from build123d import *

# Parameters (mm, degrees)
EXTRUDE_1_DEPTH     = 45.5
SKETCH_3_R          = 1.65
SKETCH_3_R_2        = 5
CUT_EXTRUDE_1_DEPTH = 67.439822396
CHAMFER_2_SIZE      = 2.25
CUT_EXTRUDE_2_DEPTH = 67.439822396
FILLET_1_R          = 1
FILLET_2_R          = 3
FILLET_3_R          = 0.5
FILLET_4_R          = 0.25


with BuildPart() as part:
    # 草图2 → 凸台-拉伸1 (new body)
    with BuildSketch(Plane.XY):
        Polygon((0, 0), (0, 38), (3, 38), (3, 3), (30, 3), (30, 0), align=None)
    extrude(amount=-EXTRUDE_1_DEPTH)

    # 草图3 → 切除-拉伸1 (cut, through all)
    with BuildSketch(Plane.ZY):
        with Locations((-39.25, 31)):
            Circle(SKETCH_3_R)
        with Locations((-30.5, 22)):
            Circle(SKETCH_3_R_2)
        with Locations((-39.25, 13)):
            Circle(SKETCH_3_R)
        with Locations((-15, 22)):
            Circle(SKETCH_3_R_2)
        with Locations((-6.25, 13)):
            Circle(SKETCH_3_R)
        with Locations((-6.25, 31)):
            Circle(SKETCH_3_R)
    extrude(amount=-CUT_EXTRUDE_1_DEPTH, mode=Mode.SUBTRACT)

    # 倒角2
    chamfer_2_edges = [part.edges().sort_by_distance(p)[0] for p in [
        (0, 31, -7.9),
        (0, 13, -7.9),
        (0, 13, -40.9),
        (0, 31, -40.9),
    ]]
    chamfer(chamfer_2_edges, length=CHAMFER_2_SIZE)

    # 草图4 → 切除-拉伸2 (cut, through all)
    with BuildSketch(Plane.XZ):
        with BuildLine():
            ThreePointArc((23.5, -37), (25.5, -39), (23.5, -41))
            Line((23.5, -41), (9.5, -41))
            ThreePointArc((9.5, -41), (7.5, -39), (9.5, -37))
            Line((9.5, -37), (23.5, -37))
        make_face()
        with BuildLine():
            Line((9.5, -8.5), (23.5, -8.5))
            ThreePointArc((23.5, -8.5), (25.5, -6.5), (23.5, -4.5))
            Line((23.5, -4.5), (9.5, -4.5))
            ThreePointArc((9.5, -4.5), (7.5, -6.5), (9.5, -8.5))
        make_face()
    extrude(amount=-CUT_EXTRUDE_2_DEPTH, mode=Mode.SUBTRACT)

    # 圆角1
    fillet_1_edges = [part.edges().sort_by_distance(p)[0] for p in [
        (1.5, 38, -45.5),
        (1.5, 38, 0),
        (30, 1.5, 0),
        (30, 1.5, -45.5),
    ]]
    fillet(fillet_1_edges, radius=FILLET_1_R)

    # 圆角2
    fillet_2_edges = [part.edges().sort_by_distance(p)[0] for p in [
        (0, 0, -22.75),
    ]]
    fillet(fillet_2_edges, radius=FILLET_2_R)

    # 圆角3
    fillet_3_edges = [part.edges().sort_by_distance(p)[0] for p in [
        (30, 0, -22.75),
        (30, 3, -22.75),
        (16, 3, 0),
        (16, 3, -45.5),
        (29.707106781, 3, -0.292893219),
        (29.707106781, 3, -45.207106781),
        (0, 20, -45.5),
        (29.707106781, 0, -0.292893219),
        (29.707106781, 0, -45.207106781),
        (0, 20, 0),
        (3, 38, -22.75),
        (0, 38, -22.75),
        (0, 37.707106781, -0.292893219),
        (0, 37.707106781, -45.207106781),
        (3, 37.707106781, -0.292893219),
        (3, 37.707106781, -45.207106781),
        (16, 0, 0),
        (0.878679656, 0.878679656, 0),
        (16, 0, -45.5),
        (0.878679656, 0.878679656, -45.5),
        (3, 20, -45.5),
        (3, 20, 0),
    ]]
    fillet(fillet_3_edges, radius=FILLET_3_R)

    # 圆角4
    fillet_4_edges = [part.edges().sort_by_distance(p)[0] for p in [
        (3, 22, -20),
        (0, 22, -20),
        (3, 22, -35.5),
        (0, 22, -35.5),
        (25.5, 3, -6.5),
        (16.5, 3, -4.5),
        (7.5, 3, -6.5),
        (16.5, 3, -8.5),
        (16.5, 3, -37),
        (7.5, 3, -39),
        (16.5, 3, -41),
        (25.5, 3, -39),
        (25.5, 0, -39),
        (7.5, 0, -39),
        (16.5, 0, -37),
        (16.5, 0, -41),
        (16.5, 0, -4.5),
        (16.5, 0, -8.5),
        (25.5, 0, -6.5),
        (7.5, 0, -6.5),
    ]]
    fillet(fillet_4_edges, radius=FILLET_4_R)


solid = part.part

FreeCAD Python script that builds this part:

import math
import FreeCAD as App
import Part
import Sketcher

V = App.Vector


def edges_at(feature, points):
    """Names of the edges that pass closest to the given points."""
    edges = feature.Shape.Edges
    near = lambda p: min(range(len(edges)), key=lambda i: edges[i].distToShape(Part.Vertex(*p))[0])
    return sorted({f"Edge{near(p) + 1}" for p in points})


def add_polygon(sketch, points):
    """Adds a closed chain of lines whose ends are joined by coincident constraints."""
    first, n = sketch.GeometryCount, len(points)
    for a, b in zip(points, points[1:] + points[:1]):
        sketch.addGeometry(Part.LineSegment(App.Vector(*a, 0), App.Vector(*b, 0)), False)
    for i in range(n):
        sketch.addConstraint(Sketcher.Constraint("Coincident", first + i, 2, first + (i + 1) % n, 1))

doc = App.newDocument("Part")
body = doc.addObject("PartDesign::Body", "Body")

# Sketch on XY plane
sketch1 = body.newObject("Sketcher::SketchObject", "Sketch")
sketch1.AttachmentSupport = (doc.getObject("XY_Plane"), [""])
sketch1.MapMode = "FlatFace"
add_polygon(sketch1, [(0, 38), (0, 0), (30, 0), (30, 3), (3, 3), (3, 38)])  # lines 0-5
sketch1.addConstraint([
    Sketcher.Constraint("Vertical", 0),
    Sketcher.Constraint("Horizontal", 1),
    Sketcher.Constraint("Vertical", 2),
    Sketcher.Constraint("Horizontal", 3),
    Sketcher.Constraint("Vertical", 4),
    Sketcher.Constraint("Horizontal", 5),
    Sketcher.Constraint("Coincident", 0, 2, -1, 1),
    Sketcher.Constraint("Equal", 5, 2),
    Sketcher.Constraint("DistanceX", 1, 1, 1, 2, 30.0),
    Sketcher.Constraint("DistanceX", 3, 2, 3, 1, 27.0),
    Sketcher.Constraint("DistanceY", 0, 2, 0, 1, 38.0),
])
pad1 = body.newObject("PartDesign::Pad", "Pad")
pad1.Profile = sketch1
pad1.Length = 45.5
pad1.Reversed = True

# Sketch on YZ plane
sketch2 = body.newObject("Sketcher::SketchObject", "Sketch001")
sketch2.AttachmentSupport = (doc.getObject("YZ_Plane"), [""])
sketch2.MapMode = "FlatFace"
sketch2.addGeometry([
    Part.Circle(V(31, -39.2, 0), V(0, 0, 1), 1.6),  # 0
    Part.Circle(V(22, -30.5, 0), V(0, 0, 1), 5),  # 1
    Part.Circle(V(13, -39.2, 0), V(0, 0, 1), 1.6),  # 2
    Part.Circle(V(22, -15, 0), V(0, 0, 1), 5),  # 3
    Part.Circle(V(13, -6.2, 0), V(0, 0, 1), 1.6),  # 4
    Part.Circle(V(31, -6.2, 0), V(0, 0, 1), 1.6),  # 5
], False)
sketch2.addConstraint([
    Sketcher.Constraint("Equal", 0, 2),
    Sketcher.Constraint("Equal", 1, 3),
    Sketcher.Constraint("Equal", 2, 4),
    Sketcher.Constraint("Equal", 4, 5),
    Sketcher.Constraint("Horizontal", 0, 3, 2, 3),
    Sketcher.Constraint("Horizontal", 4, 3, 5, 3),
    Sketcher.Constraint("Vertical", 1, 3, 3, 3),
    Sketcher.Constraint("Vertical", 2, 3, 4, 3),
    Sketcher.Constraint("Vertical", 0, 3, 5, 3),
    Sketcher.Constraint("Diameter", 1, 10.0),
    Sketcher.Constraint("Diameter", 0, 3.3),
    Sketcher.Constraint("DistanceX", -1, 1, 0, 3, 31.0),
    Sketcher.Constraint("DistanceX", -1, 1, 1, 3, 22.0),
    Sketcher.Constraint("DistanceX", -1, 1, 2, 3, 13.0),
    Sketcher.Constraint("DistanceY", 3, 3, -1, 1, 15.0),
    Sketcher.Constraint("DistanceY", 2, 3, 4, 3, 33.0),
    Sketcher.Constraint("DistanceY", 1, 3, -1, 1, 30.5),
    Sketcher.Constraint("DistanceY", 0, 3, -1, 1, 39.25),
])
pocket1 = body.newObject("PartDesign::Pocket", "Pocket")
pocket1.Profile = sketch2
pocket1.Type = "ThroughAll"
pocket1.Reversed = True
doc.recompute()

chamfer = body.newObject("PartDesign::Chamfer", "Chamfer")
chamfer.Base = (pocket1, edges_at(pocket1, [
    (0, 31, -7.9),
    (0, 13, -7.9),
    (0, 13, -40.9),
    (0, 31, -40.9),
]))
chamfer.Size = 2.25

# Sketch on XZ plane
sketch3 = body.newObject("Sketcher::SketchObject", "Sketch002")
sketch3.AttachmentSupport = (doc.getObject("XZ_Plane"), [""])
sketch3.MapMode = "FlatFace"
sketch3.addGeometry([
    Part.ArcOfCircle(Part.Circle(V(23.5, -39, 0), V(0, 0, 1), 2), math.radians(-90), math.radians(90)),  # 0
    Part.LineSegment(V(23.5, -37, 0), V(9.5, -37, 0)),  # 1
    Part.ArcOfCircle(Part.Circle(V(9.5, -39, 0), V(0, 0, 1), 2), math.radians(90), math.radians(270)),  # 2
    Part.LineSegment(V(9.5, -41, 0), V(23.5, -41, 0)),  # 3
    Part.LineSegment(V(9.5, -8.5, 0), V(23.5, -8.5, 0)),  # 4
    Part.ArcOfCircle(Part.Circle(V(23.5, -6.5, 0), V(0, 0, 1), 2), math.radians(-90), math.radians(90)),  # 5
    Part.LineSegment(V(23.5, -4.5, 0), V(9.5, -4.5, 0)),  # 6
    Part.ArcOfCircle(Part.Circle(V(9.5, -6.5, 0), V(0, 0, 1), 2), math.radians(90), math.radians(270)),  # 7
], False)
sketch3.addConstraint([
    Sketcher.Constraint("Tangent", 0, 2, 1, 1),
    Sketcher.Constraint("Tangent", 1, 2, 2, 1),
    Sketcher.Constraint("Tangent", 2, 2, 3, 1),
    Sketcher.Constraint("Tangent", 3, 2, 0, 1),
    Sketcher.Constraint("Tangent", 4, 2, 5, 1),
    Sketcher.Constraint("Tangent", 5, 2, 6, 1),
    Sketcher.Constraint("Tangent", 6, 2, 7, 1),
    Sketcher.Constraint("Tangent", 7, 2, 4, 1),
    Sketcher.Constraint("Horizontal", 1),
    Sketcher.Constraint("Horizontal", 3),
    Sketcher.Constraint("Horizontal", 4),
    Sketcher.Constraint("Horizontal", 6),
    Sketcher.Constraint("Equal", 2, 5),
    Sketcher.Constraint("Vertical", 0, 3, 5, 3),
    Sketcher.Constraint("Vertical", 2, 3, 7, 3),
    Sketcher.Constraint("Radius", 0, 2.0),
    Sketcher.Constraint("DistanceX", 1, 2, 1, 1, 14.0),
    Sketcher.Constraint("DistanceY", 0, 3, -1, 1, 39.0),
    Sketcher.Constraint("DistanceX", -1, 1, 0, 3, 23.5),
    Sketcher.Constraint("DistanceY", 5, 3, -1, 1, 6.5),
])
pocket2 = body.newObject("PartDesign::Pocket", "Pocket001")
pocket2.Profile = sketch3
pocket2.Type = "ThroughAll"
doc.recompute()

fillet = body.newObject("PartDesign::Fillet", "Fillet")
fillet.Base = (pocket2, edges_at(pocket2, [
    (1.5, 38, -45.5),
    (1.5, 38, 0),
    (30, 1.5, 0),
    (30, 1.5, -45.5),
]))
fillet.Radius = 1
doc.recompute()

fillet2 = body.newObject("PartDesign::Fillet", "Fillet001")
fillet2.Base = (fillet, edges_at(fillet, [(0, 0, -22.75)]))
fillet2.Radius = 3
doc.recompute()

fillet3 = body.newObject("PartDesign::Fillet", "Fillet002")
fillet3.Base = (fillet2, edges_at(fillet2, [
    (30, 0, -22.75),
    (30, 3, -22.75),
    (16, 3, 0),
    (16, 3, -45.5),
    (29.707, 3, -0.293),
    (29.707, 3, -45.207),
    (0, 20, -45.5),
    (29.707, 0, -0.293),
    (29.707, 0, -45.207),
    (0, 20, 0),
    (3, 38, -22.75),
    (0, 38, -22.75),
    (0, 37.707, -0.293),
    (0, 37.707, -45.207),
    (3, 37.707, -0.293),
    (3, 37.707, -45.207),
    (16, 0, 0),
    (0.879, 0.879, 0),
    (16, 0, -45.5),
    (0.879, 0.879, -45.5),
    (3, 20, -45.5),
    (3, 20, 0),
]))
fillet3.Radius = 0.5
doc.recompute()

fillet4 = body.newObject("PartDesign::Fillet", "Fillet003")
fillet4.Base = (fillet3, edges_at(fillet3, [
    (3, 22, -20),
    (0, 22, -20),
    (3, 22, -35.5),
    (0, 22, -35.5),
    (25.5, 3, -6.5),
    (16.5, 3, -4.5),
    (7.5, 3, -6.5),
    (16.5, 3, -8.5),
    (16.5, 3, -37),
    (7.5, 3, -39),
    (16.5, 3, -41),
    (25.5, 3, -39),
    (25.5, 0, -39),
    (7.5, 0, -39),
    (16.5, 0, -37),
    (16.5, 0, -41),
    (16.5, 0, -4.5),
    (16.5, 0, -8.5),
    (25.5, 0, -6.5),
    (7.5, 0, -6.5),
]))
fillet4.Radius = 0.25

doc.recompute()
